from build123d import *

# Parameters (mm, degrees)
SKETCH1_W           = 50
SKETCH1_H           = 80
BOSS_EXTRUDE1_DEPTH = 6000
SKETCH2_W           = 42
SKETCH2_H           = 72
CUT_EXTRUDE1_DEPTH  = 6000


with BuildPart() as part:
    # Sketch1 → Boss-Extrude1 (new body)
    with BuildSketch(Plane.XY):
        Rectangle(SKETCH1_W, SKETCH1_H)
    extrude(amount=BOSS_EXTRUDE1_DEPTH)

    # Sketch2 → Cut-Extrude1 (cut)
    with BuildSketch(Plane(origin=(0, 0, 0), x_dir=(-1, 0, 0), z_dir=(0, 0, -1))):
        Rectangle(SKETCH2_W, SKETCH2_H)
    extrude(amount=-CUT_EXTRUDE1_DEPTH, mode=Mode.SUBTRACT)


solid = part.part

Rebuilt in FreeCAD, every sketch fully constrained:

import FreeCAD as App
import Part
import Sketcher

doc = App.newDocument("Part")
body = doc.addObject("PartDesign::Body", "Body")

# Sketch on XY plane
sketch1 = body.newObject("Sketcher::SketchObject", "Sketch")
sketch1.AttachmentSupport = (doc.getObject("XY_Plane"), [""])
sketch1.MapMode = "FlatFace"
sketch1.addGeometry([
    Part.LineSegment(App.Vector(-25, 40, 0), App.Vector(-25, -40, 0)),
    Part.LineSegment(App.Vector(-25, -40, 0), App.Vector(25, -40, 0)),
    Part.LineSegment(App.Vector(25, -40, 0), App.Vector(25, 40, 0)),
    Part.LineSegment(App.Vector(25, 40, 0), App.Vector(-25, 40, 0)),
], False)
sketch1.addConstraint([
    Sketcher.Constraint("Coincident", 0, 2, 1, 1),
    Sketcher.Constraint("Coincident", 1, 2, 2, 1),
    Sketcher.Constraint("Coincident", 2, 2, 3, 1),
    Sketcher.Constraint("Coincident", 3, 2, 0, 1),
    Sketcher.Constraint("Vertical", 0),
    Sketcher.Constraint("Horizontal", 1),
    Sketcher.Constraint("Vertical", 2),
    Sketcher.Constraint("Horizontal", 3),
    Sketcher.Constraint("Symmetric", 0, 2, 2, 2, -1, 1),
    Sketcher.Constraint("DistanceX", 1, 1, 1, 2, 50.0),
    Sketcher.Constraint("DistanceY", 0, 2, 0, 1, 80.0),
])
pad1 = body.newObject("PartDesign::Pad", "Pad")
pad1.Profile = sketch1
pad1.Length = 6000

# Sketch on XY plane
sketch2 = body.newObject("Sketcher::SketchObject", "Sketch001")
sketch2.AttachmentSupport = (doc.getObject("XY_Plane"), [""])
sketch2.MapMode = "FlatFace"
sketch2.addGeometry([
    Part.LineSegment(App.Vector(21, 36, 0), App.Vector(21, -36, 0)),
    Part.LineSegment(App.Vector(21, -36, 0), App.Vector(-21, -36, 0)),
    Part.LineSegment(App.Vector(-21, -36, 0), App.Vector(-21, 36, 0)),
    Part.LineSegment(App.Vector(-21, 36, 0), App.Vector(21, 36, 0)),
], False)
sketch2.addConstraint([
    Sketcher.Constraint("Coincident", 0, 2, 1, 1),
    Sketcher.Constraint("Coincident", 1, 2, 2, 1),
    Sketcher.Constraint("Coincident", 2, 2, 3, 1),
    Sketcher.Constraint("Coincident", 3, 2, 0, 1),
    Sketcher.Constraint("Vertical", 0),
    Sketcher.Constraint("Horizontal", 1),
    Sketcher.Constraint("Vertical", 2),
    Sketcher.Constraint("Horizontal", 3),
    Sketcher.Constraint("Symmetric", 0, 2, 2, 2, -1, 1),
    Sketcher.Constraint("DistanceX", 1, 2, 1, 1, 42.0),
    Sketcher.Constraint("DistanceY", 0, 2, 0, 1, 72.0),
])
pocket1 = body.newObject("PartDesign::Pocket", "Pocket")
pocket1.Profile = sketch2
pocket1.Length = 6000
pocket1.Reversed = True

doc.recompute()
